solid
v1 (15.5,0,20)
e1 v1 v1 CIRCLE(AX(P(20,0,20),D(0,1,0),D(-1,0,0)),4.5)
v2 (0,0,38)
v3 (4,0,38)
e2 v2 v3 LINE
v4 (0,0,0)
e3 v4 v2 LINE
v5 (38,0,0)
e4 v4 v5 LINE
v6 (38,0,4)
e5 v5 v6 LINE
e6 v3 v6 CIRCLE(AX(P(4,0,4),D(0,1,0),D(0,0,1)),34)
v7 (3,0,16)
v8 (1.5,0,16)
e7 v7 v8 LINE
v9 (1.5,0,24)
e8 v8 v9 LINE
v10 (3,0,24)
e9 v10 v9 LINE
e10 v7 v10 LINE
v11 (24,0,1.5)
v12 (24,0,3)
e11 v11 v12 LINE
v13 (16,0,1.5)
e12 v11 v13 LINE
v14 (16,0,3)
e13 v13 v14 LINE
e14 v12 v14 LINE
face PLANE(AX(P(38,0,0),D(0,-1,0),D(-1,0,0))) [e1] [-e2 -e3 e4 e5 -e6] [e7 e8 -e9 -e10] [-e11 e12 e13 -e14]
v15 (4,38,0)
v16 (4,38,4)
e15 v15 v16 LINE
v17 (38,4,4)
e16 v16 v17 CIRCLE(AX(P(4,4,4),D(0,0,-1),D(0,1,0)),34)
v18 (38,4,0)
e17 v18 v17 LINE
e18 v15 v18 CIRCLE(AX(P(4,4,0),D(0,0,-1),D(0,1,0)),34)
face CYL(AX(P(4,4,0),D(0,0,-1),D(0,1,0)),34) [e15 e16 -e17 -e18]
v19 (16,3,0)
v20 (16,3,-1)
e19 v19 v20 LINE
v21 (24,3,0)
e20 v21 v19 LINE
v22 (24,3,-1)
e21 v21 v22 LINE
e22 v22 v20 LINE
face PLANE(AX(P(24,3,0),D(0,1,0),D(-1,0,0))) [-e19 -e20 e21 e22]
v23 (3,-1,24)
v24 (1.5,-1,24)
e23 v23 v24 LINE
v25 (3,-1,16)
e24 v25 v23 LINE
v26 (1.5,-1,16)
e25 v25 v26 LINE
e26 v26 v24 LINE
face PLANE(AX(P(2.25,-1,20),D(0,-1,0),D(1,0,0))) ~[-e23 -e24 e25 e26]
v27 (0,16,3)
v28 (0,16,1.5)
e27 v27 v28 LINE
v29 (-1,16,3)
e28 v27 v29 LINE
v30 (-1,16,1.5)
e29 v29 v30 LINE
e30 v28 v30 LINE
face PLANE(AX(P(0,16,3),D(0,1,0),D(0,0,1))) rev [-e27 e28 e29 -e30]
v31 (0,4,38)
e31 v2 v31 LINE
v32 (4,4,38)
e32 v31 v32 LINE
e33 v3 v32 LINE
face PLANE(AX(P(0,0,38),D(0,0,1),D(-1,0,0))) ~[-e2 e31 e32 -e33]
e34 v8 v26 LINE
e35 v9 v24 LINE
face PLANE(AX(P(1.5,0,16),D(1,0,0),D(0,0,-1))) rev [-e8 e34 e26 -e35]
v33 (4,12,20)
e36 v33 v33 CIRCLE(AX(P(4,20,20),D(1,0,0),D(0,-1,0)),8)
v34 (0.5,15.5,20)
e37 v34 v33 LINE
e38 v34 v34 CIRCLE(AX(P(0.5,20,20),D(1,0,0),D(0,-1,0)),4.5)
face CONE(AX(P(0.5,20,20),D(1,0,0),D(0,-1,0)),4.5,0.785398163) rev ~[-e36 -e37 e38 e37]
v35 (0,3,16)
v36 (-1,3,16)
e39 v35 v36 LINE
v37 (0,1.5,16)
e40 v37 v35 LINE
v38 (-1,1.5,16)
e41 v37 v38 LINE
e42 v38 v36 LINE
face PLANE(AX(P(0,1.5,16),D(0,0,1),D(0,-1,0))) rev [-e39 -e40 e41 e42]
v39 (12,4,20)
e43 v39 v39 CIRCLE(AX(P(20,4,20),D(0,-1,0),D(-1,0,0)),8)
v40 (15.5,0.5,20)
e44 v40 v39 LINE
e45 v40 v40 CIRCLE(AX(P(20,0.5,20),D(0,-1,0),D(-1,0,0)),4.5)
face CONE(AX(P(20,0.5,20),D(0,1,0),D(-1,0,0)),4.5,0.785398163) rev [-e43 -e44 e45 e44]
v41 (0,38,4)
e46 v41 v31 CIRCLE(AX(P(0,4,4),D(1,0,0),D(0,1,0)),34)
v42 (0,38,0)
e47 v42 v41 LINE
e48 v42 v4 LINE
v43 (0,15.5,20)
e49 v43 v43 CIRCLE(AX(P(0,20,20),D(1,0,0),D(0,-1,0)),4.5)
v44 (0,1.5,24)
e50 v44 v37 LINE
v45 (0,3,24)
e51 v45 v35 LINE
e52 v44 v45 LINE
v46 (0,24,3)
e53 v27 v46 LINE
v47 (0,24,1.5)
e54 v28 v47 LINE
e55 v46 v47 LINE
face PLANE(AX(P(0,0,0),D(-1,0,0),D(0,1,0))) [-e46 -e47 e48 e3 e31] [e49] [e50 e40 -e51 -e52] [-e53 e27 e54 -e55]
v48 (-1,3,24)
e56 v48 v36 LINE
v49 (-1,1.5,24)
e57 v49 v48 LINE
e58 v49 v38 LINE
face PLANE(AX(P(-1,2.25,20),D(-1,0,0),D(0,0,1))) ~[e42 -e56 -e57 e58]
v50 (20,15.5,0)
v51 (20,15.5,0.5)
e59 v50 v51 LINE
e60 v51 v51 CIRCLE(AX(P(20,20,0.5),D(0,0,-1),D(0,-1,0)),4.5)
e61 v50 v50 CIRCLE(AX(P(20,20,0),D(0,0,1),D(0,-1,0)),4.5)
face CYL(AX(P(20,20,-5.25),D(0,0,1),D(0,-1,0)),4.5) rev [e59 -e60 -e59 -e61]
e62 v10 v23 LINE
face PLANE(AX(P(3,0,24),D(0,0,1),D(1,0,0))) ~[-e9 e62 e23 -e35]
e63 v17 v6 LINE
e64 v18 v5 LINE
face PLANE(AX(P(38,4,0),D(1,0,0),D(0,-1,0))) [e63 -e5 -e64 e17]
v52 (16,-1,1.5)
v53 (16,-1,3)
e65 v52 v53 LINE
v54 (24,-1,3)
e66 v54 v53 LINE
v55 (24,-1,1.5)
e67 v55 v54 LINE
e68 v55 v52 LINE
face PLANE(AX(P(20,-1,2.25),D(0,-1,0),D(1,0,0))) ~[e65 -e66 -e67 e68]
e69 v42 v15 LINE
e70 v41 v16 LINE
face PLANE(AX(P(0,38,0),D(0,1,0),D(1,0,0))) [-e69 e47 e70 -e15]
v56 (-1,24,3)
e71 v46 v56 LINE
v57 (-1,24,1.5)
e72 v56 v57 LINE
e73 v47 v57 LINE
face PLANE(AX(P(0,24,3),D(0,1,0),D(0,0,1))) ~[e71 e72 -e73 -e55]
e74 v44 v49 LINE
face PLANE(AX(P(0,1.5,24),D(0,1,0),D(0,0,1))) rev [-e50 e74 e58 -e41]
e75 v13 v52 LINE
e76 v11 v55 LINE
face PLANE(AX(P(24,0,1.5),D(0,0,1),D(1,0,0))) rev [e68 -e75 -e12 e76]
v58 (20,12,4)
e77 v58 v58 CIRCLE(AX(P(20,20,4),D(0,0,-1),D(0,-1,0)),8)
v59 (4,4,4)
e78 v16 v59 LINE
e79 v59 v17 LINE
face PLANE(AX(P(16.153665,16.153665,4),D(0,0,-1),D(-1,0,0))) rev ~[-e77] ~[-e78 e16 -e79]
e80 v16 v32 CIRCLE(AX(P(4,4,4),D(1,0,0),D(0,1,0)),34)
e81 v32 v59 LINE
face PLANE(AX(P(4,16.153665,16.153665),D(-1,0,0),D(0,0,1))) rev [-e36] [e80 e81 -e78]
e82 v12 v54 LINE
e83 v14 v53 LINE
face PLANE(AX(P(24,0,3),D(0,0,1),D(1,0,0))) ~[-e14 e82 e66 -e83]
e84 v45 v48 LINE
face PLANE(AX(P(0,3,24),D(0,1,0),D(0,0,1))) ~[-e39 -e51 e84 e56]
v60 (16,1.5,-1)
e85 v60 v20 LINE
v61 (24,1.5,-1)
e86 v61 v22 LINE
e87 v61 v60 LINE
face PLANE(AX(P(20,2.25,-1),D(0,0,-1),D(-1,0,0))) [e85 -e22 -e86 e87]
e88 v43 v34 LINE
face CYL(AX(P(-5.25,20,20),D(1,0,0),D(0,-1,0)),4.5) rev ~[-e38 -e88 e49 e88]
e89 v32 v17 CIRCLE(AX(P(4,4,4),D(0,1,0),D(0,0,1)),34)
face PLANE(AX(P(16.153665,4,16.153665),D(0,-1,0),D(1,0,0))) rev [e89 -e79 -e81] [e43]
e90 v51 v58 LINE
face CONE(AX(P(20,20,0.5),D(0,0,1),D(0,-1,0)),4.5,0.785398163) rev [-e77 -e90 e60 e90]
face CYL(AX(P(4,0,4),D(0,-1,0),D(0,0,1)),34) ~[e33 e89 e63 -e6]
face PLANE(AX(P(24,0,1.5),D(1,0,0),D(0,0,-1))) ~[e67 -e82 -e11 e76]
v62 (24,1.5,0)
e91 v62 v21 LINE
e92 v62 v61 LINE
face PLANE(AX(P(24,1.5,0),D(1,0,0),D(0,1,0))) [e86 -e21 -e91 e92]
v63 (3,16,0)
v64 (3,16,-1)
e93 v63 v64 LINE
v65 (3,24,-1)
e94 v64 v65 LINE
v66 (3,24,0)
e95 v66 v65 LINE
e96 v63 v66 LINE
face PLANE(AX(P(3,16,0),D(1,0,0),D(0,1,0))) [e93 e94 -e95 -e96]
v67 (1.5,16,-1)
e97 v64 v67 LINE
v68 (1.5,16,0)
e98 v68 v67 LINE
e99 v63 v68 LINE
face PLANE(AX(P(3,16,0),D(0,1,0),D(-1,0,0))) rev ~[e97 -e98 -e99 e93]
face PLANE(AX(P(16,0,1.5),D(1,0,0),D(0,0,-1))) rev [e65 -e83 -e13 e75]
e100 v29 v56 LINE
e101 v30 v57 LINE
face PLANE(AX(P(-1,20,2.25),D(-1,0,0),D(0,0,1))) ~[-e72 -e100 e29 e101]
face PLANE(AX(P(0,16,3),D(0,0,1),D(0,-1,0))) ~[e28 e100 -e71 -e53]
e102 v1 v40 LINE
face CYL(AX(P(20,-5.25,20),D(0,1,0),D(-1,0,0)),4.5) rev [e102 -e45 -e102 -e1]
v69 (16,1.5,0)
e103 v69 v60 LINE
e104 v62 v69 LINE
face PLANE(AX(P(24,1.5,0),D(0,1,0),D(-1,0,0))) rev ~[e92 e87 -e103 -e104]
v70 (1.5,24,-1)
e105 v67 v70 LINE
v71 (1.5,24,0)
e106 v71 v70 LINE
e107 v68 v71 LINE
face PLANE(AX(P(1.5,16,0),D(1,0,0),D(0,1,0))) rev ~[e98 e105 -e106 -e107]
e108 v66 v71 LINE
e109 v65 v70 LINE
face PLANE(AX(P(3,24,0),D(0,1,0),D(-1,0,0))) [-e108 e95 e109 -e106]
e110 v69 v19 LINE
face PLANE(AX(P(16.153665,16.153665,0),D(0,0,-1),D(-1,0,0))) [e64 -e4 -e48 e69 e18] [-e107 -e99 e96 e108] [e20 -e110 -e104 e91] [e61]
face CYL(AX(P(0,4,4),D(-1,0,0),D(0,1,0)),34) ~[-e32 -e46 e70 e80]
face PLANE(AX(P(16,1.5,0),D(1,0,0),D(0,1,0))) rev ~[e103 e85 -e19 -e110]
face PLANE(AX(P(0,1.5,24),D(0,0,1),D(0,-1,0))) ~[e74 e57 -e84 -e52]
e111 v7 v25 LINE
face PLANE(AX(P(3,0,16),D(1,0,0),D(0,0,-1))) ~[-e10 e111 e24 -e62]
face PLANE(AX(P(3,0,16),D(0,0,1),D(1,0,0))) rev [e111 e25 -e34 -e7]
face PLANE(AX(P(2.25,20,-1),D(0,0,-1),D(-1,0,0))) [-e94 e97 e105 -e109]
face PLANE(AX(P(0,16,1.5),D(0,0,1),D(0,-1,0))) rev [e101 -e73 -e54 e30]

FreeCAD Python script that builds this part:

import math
import FreeCAD as App
import Part
import Sketcher

V = App.Vector
Q = App.Units.Quantity

doc = App.newDocument("Part")
body = doc.addObject("PartDesign::Body", "Body")

sketch1 = body.newObject("Sketcher::SketchObject", "Sketch")
sketch1.AttachmentSupport = (doc.getObject("XY_Plane"), [""])
sketch1.MapMode = "FlatFace"
sketch1.addGeometry([
    Part.LineSegment(V(0, 38, 0), V(0, 0, 0)),
    Part.LineSegment(V(0, 0, 0), V(38, 0, 0)),
    Part.LineSegment(V(38, 0, 0), V(38, 4, 0)),
    Part.ArcOfCircle(Part.Circle(V(4, 4, 0), V(0, 0, 1), 34), math.radians(0), math.radians(90)),
    Part.LineSegment(V(4, 38, 0), V(0, 38, 0)),
], False)
sketch1.addConstraint([
    Sketcher.Constraint("Coincident", 0, 2, 1, 1),
    Sketcher.Constraint("Coincident", 1, 2, 2, 1),
    Sketcher.Constraint("Tangent", 2, 2, 3, 1),
    Sketcher.Constraint("Tangent", 3, 2, 4, 1),
    Sketcher.Constraint("Coincident", 4, 2, 0, 1),
    Sketcher.Constraint("Vertical", 0),
    Sketcher.Constraint("Horizontal", 1),
    Sketcher.Constraint("Vertical", 2),
    Sketcher.Constraint("Horizontal", 4),
    Sketcher.Constraint("Coincident", 0, 2, -1, 1),
    Sketcher.Constraint("Equal", 1, 0),
    Sketcher.Constraint("Radius", 3, Q("34 mm")),
    Sketcher.Constraint("DistanceX", 1, 1, 1, 2, Q("38 mm")),
])
pad1 = body.newObject("PartDesign::Pad", "Pad")
pad1.Profile = sketch1
pad1.Length = 4

sketch2 = body.newObject("Sketcher::SketchObject", "Sketch001")
sketch2.AttachmentSupport = (doc.getObject("YZ_Plane"), [""])
sketch2.MapMode = "FlatFace"
sketch2.AttachmentOffset = App.Placement(V(0, 0, 20), App.Rotation())
sketch2.addGeometry([
    Part.LineSegment(V(20, -7.953873, 0), V(20, 4, 0)),
    Part.LineSegment(V(20, 4, 0), V(12, 4, 0)),
    Part.LineSegment(V(12, 4, 0), V(15.5, 0.5, 0)),
    Part.LineSegment(V(15.5, 0.5, 0), V(15.5, -5.25, 0)),
    Part.LineSegment(V(15.5, -5.25, 0), V(20, -7.953873, 0)),
], False)
sketch2.addGeometry(Part.LineSegment(V(20, 4, 0), V(20, -7.953873, 0)), True)
sketch2.addConstraint([
    Sketcher.Constraint("Coincident", 0, 2, 1, 1),
    Sketcher.Constraint("Coincident", 1, 2, 2, 1),
    Sketcher.Constraint("Coincident", 2, 2, 3, 1),
    Sketcher.Constraint("Coincident", 3, 2, 4, 1),
    Sketcher.Constraint("Coincident", 4, 2, 0, 1),
    Sketcher.Constraint("Vertical", 0),
    Sketcher.Constraint("Horizontal", 1),
    Sketcher.Constraint("Vertical", 3),
    Sketcher.Constraint("Vertical", 5),
    Sketcher.Constraint("Coincident", 5, 1, 0, 2),
    Sketcher.Constraint("Equal", 0, 5),
    Sketcher.Constraint("DistanceX", 1, 2, 1, 1, Q("8 mm")),
    Sketcher.Constraint("Angle", 2, Q("-45 deg")),
    Sketcher.Constraint("Angle", 4, Q("-31 deg")),
    Sketcher.Constraint("DistanceX", -1, 1, 0, 2, Q("20 mm")),
    Sketcher.Constraint("DistanceY", -1, 1, 0, 2, Q("4 mm")),
    Sketcher.Constraint("DistanceY", 3, 2, 3, 1, Q("5.75 mm")),
    Sketcher.Constraint("DistanceX", -1, 1, 2, 2, Q("15.5 mm")),
])
groove = body.newObject("PartDesign::Groove", "Groove")
groove.Profile = sketch2
groove.ReferenceAxis = (sketch2, ["Axis0"])
groove.Angle = 360

sketch3 = body.newObject("Sketcher::SketchObject", "Sketch002")
sketch3.AttachmentSupport = (doc.getObject("XY_Plane"), [""])
sketch3.MapMode = "FlatFace"
sketch3.addGeometry([
    Part.LineSegment(V(3, 24, 0), V(3, 16, 0)),
    Part.LineSegment(V(3, 16, 0), V(1.5, 16, 0)),
    Part.LineSegment(V(1.5, 16, 0), V(1.5, 24, 0)),
    Part.LineSegment(V(1.5, 24, 0), V(3, 24, 0)),
    Part.LineSegment(V(24, 3, 0), V(24, 1.5, 0)),
    Part.LineSegment(V(24, 1.5, 0), V(16, 1.5, 0)),
    Part.LineSegment(V(16, 1.5, 0), V(16, 3, 0)),
    Part.LineSegment(V(16, 3, 0), V(24, 3, 0)),
], False)
sketch3.addConstraint([
    Sketcher.Constraint("Coincident", 0, 2, 1, 1),
    Sketcher.Constraint("Coincident", 1, 2, 2, 1),
    Sketcher.Constraint("Coincident", 2, 2, 3, 1),
    Sketcher.Constraint("Coincident", 3, 2, 0, 1),
    Sketcher.Constraint("Coincident", 4, 2, 5, 1),
    Sketcher.Constraint("Coincident", 5, 2, 6, 1),
    Sketcher.Constraint("Coincident", 6, 2, 7, 1),
    Sketcher.Constraint("Coincident", 7, 2, 4, 1),
    Sketcher.Constraint("Vertical", 0),
    Sketcher.Constraint("Horizontal", 1),
    Sketcher.Constraint("Vertical", 2),
    Sketcher.Constraint("Horizontal", 3),
    Sketcher.Constraint("Vertical", 4),
    Sketcher.Constraint("Horizontal", 5),
    Sketcher.Constraint("Vertical", 6),
    Sketcher.Constraint("Horizontal", 7),
    Sketcher.Constraint("Equal", 7, 0),
    Sketcher.Constraint("Equal", 3, 4),
    Sketcher.Constraint("DistanceX", 5, 2, 5, 1, Q("8 mm")),
    Sketcher.Constraint("DistanceX", 1, 2, 1, 1, Q("1.5 mm")),
    Sketcher.Constraint("DistanceX", -1, 1, 0, 2, Q("3 mm")),
    Sketcher.Constraint("DistanceY", -1, 1, 0, 2, Q("16 mm")),
    Sketcher.Constraint("DistanceX", -1, 1, 4, 2, Q("24 mm")),
    Sketcher.Constraint("DistanceY", -1, 1, 6, 2, Q("3 mm")),
])
pad2 = body.newObject("PartDesign::Pad", "Pad001")
pad2.Profile = sketch3
pad2.Length = 1
pad2.Reversed = True
doc.recompute()

datumplane = body.newObject("PartDesign::Plane", "DatumPlane")
datumplane.Placement = App.Placement(V(0, 0, 0), App.Rotation(V(0, 0.707106781, 0.707106781), V(-1, 0, 0), V(0, -0.707106781, 0.707106781), "ZXY"))
mirrored = body.newObject("PartDesign::Mirrored", "Mirrored")
mirrored.Originals = [pad1, groove, pad2]
mirrored.MirrorPlane = (datumplane, [""])
body.Tip = mirrored
doc.recompute()

datumplane2 = body.newObject("PartDesign::Plane", "DatumPlane001")
datumplane2.Placement = App.Placement(V(0, 0, 0), App.Rotation(V(-0.707106781, 0, -0.707106781), V(0, -1, 0), V(-0.707106781, 0, 0.707106781), "ZXY"))
mirrored2 = body.newObject("PartDesign::Mirrored", "Mirrored001")
mirrored2.Originals = [pad1, groove, pad2]
mirrored2.MirrorPlane = (datumplane2, [""])
body.Tip = mirrored2

sketch4 = body.newObject("Sketcher::SketchObject", "Sketch003")
sketch4.AttachmentSupport = (doc.getObject("XZ_Plane"), [""])
sketch4.MapMode = "FlatFace"
sketch4.addGeometry([
    Part.LineSegment(V(38, 0, 0), V(0, 0, 0)),
    Part.LineSegment(V(0, 0, 0), V(0, 38, 0)),
    Part.LineSegment(V(0, 38, 0), V(4, 38, 0)),
    Part.ArcOfCircle(Part.Circle(V(4, 4, 0), V(0, 0, 1), 34), math.radians(0), math.radians(90)),
    Part.LineSegment(V(38, 4, 0), V(38, 0, 0)),
], False)
sketch4.addConstraint([
    Sketcher.Constraint("Coincident", 0, 2, 1, 1),
    Sketcher.Constraint("Coincident", 1, 2, 2, 1),
    Sketcher.Constraint("Tangent", 2, 2, 3, 2),
    Sketcher.Constraint("Tangent", 3, 1, 4, 1),
    Sketcher.Constraint("Coincident", 4, 2, 0, 1),
    Sketcher.Constraint("Horizontal", 0),
    Sketcher.Constraint("Vertical", 1),
    Sketcher.Constraint("Horizontal", 2),
    Sketcher.Constraint("Vertical", 4),
    Sketcher.Constraint("Coincident", 0, 2, -1, 1),
    Sketcher.Constraint("Equal", 0, 1),
    Sketcher.Constraint("Radius", 3, Q("34 mm")),
    Sketcher.Constraint("DistanceX", 0, 2, 0, 1, Q("38 mm")),
])
pad3 = body.newObject("PartDesign::Pad", "Pad002")
pad3.Profile = sketch4
pad3.Length = 4
pad3.Reversed = True

sketch5 = body.newObject("Sketcher::SketchObject", "Sketch004")
sketch5.AttachmentSupport = (doc.getObject("XY_Plane"), [""])
sketch5.MapMode = "FlatFace"
sketch5.AttachmentOffset = App.Placement(V(0, 0, 20), App.Rotation())
sketch5.addGeometry([
    Part.LineSegment(V(20, -7.953873, 0), V(20, 4, 0)),
    Part.LineSegment(V(20, 4, 0), V(12, 4, 0)),
    Part.LineSegment(V(12, 4, 0), V(15.5, 0.5, 0)),
    Part.LineSegment(V(15.5, 0.5, 0), V(15.5, -5.25, 0)),
    Part.LineSegment(V(15.5, -5.25, 0), V(20, -7.953873, 0)),
], False)
sketch5.addGeometry(Part.LineSegment(V(20, 4, 0), V(20, -7.953873, 0)), True)
sketch5.addConstraint([
    Sketcher.Constraint("Coincident", 0, 2, 1, 1),
    Sketcher.Constraint("Coincident", 1, 2, 2, 1),
    Sketcher.Constraint("Coincident", 2, 2, 3, 1),
    Sketcher.Constraint("Coincident", 3, 2, 4, 1),
    Sketcher.Constraint("Coincident", 4, 2, 0, 1),
    Sketcher.Constraint("Vertical", 0),
    Sketcher.Constraint("Horizontal", 1),
    Sketcher.Constraint("Vertical", 3),
    Sketcher.Constraint("Vertical", 5),
    Sketcher.Constraint("Coincident", 5, 1, 0, 2),
    Sketcher.Constraint("Equal", 0, 5),
    Sketcher.Constraint("DistanceX", 1, 2, 1, 1, Q("8 mm")),
    Sketcher.Constraint("Angle", 2, Q("-45 deg")),
    Sketcher.Constraint("Angle", 4, Q("-31 deg")),
    Sketcher.Constraint("DistanceX", -1, 1, 0, 2, Q("20 mm")),
    Sketcher.Constraint("DistanceY", -1, 1, 0, 2, Q("4 mm")),
    Sketcher.Constraint("DistanceY", 3, 2, 3, 1, Q("5.75 mm")),
    Sketcher.Constraint("DistanceX", -1, 1, 2, 2, Q("15.5 mm")),
])
groove2 = body.newObject("PartDesign::Groove", "Groove001")
groove2.Profile = sketch5
groove2.ReferenceAxis = (sketch5, ["Axis0"])
groove2.Angle = 360

sketch6 = body.newObject("Sketcher::SketchObject", "Sketch005")
sketch6.AttachmentSupport = (doc.getObject("XZ_Plane"), [""])
sketch6.MapMode = "FlatFace"
sketch6.addGeometry([
    Part.LineSegment(V(24, 3, 0), V(16, 3, 0)),
    Part.LineSegment(V(16, 3, 0), V(16, 1.5, 0)),
    Part.LineSegment(V(16, 1.5, 0), V(24, 1.5, 0)),
    Part.LineSegment(V(24, 1.5, 0), V(24, 3, 0)),
    Part.LineSegment(V(3, 24, 0), V(1.5, 24, 0)),
    Part.LineSegment(V(1.5, 24, 0), V(1.5, 16, 0)),
    Part.LineSegment(V(1.5, 16, 0), V(3, 16, 0)),
    Part.LineSegment(V(3, 16, 0), V(3, 24, 0)),
], False)
sketch6.addConstraint([
    Sketcher.Constraint("Coincident", 0, 2, 1, 1),
    Sketcher.Constraint("Coincident", 1, 2, 2, 1),
    Sketcher.Constraint("Coincident", 2, 2, 3, 1),
    Sketcher.Constraint("Coincident", 3, 2, 0, 1),
    Sketcher.Constraint("Coincident", 4, 2, 5, 1),
    Sketcher.Constraint("Coincident", 5, 2, 6, 1),
    Sketcher.Constraint("Coincident", 6, 2, 7, 1),
    Sketcher.Constraint("Coincident", 7, 2, 4, 1),
    Sketcher.Constraint("Horizontal", 0),
    Sketcher.Constraint("Vertical", 1),
    Sketcher.Constraint("Horizontal", 2),
    Sketcher.Constraint("Vertical", 3),
    Sketcher.Constraint("Horizontal", 4),
    Sketcher.Constraint("Vertical", 5),
    Sketcher.Constraint("Horizontal", 6),
    Sketcher.Constraint("Vertical", 7),
    Sketcher.Constraint("Equal", 6, 1),
    Sketcher.Constraint("Equal", 2, 5),
    Sketcher.Constraint("DistanceX", 0, 2, 0, 1, Q("8 mm")),
    Sketcher.Constraint("DistanceX", 4, 2, 4, 1, Q("1.5 mm")),
    Sketcher.Constraint("DistanceX", -1, 1, 0, 2, Q("16 mm")),
    Sketcher.Constraint("DistanceY", -1, 1, 0, 2, Q("3 mm")),
    Sketcher.Constraint("DistanceY", -1, 1, 4, 2, Q("24 mm")),
    Sketcher.Constraint("DistanceX", -1, 1, 6, 2, Q("3 mm")),
])
pad4 = body.newObject("PartDesign::Pad", "Pad003")
pad4.Profile = sketch6
pad4.Length = 1

doc.recompute()
